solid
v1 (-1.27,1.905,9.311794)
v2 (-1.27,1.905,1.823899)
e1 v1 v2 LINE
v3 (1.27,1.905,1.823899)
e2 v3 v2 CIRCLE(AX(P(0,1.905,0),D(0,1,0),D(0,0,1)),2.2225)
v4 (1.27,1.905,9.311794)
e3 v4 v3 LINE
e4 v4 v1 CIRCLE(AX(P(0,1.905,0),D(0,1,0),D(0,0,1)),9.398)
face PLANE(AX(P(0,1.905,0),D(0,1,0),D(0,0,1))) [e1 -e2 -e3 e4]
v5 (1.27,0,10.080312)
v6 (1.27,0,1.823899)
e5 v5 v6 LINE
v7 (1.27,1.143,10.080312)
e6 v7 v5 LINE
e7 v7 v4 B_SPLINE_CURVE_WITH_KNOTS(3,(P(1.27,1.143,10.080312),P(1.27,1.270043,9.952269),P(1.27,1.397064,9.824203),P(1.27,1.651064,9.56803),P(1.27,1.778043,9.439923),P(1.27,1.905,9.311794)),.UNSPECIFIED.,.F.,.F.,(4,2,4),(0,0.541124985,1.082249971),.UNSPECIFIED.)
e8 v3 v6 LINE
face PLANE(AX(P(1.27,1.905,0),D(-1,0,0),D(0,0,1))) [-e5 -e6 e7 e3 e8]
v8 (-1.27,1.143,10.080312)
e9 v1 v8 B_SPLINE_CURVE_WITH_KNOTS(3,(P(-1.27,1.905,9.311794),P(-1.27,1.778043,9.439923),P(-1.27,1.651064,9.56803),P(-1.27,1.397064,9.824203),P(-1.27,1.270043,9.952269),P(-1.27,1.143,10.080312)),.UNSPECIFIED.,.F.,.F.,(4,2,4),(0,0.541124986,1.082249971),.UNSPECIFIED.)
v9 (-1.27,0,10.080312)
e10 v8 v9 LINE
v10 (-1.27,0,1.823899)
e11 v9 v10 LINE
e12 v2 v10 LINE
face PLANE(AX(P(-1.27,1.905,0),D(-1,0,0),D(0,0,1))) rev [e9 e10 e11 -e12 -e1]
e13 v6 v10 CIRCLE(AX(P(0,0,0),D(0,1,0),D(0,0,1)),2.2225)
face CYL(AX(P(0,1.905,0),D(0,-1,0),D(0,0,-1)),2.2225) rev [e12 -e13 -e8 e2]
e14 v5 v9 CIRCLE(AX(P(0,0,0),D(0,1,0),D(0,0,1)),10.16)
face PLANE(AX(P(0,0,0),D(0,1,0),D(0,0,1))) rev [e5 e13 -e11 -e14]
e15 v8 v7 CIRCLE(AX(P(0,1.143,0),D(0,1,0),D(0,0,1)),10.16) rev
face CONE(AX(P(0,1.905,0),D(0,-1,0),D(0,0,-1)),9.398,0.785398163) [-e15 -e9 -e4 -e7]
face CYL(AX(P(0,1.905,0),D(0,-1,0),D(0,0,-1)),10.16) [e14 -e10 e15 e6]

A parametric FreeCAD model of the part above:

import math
import FreeCAD as App
import Part
import Sketcher
from FreeCAD import Vector
Q = App.Units.Quantity


def edges_at(feature, points):
    """Names of the edges that pass closest to the given points."""
    edges = feature.Shape.Edges
    near = lambda p: min(range(len(edges)), key=lambda i: edges[i].distToShape(Part.Vertex(*p))[0])
    return sorted({f"Edge{near(p) + 1}" for p in points})

doc = App.newDocument("Part")
params = doc.addObject("Spreadsheet::Sheet", "Params")
for row, (alias, value) in enumerate([
    ("sketch1_radius", "0.4 in"),
    ("pad1_length", "0.075 in"),
    ("chamfer_size", "0.03 in"),
], start=1):
    params.set(f"A{row}", alias)
    params.set(f"B{row}", "=" + value)
    params.setAlias(f"B{row}", alias)

body = doc.addObject("PartDesign::Body", "Body")

sketch1 = body.newObject("Sketcher::SketchObject", "Sketch")
sketch1.AttachmentSupport = (doc.getObject("XZ_Plane"), [""])
sketch1.MapMode = "FlatFace"
sketch1.addGeometry([
    Part.LineSegment(Vector(-1.3, 10.1, 0), Vector(-1.3, 1.8, 0)),
    Part.ArcOfCircle(Part.Circle(Vector(0, 0, 0), Vector(0, 0, 1), 2.2), math.radians(125), math.radians(360)),
    Part.ArcOfCircle(Part.Circle(Vector(0, 0, 0), Vector(0, 0, 1), 2.2), math.radians(0), math.radians(55)),
    Part.LineSegment(Vector(1.3, 1.8, 0), Vector(1.3, 10.1, 0)),
    Part.ArcOfCircle(Part.Circle(Vector(0, 0, 0), Vector(0, 0, 1), 10.2), math.radians(97), math.radians(443)),
], False)
sketch1.addConstraint([
    Sketcher.Constraint("Coincident", 0, 2, 1, 1),
    Sketcher.Constraint("Tangent", 1, 2, 2, 1),
    Sketcher.Constraint("Coincident", 2, 2, 3, 1),
    Sketcher.Constraint("Coincident", 3, 2, 4, 2),
    Sketcher.Constraint("Coincident", 4, 1, 0, 1),
    Sketcher.Constraint("Vertical", 0),
    Sketcher.Constraint("Vertical", 3),
    Sketcher.Constraint("Coincident", 1, 3, -1, 1),
    Sketcher.Constraint("Coincident", 4, 3, -1, 1),
    Sketcher.Constraint("Equal", 1, 2),
    Sketcher.Constraint("PointOnObject", 1, 2, -1),
    Sketcher.Constraint("Horizontal", 0, 2, 2, 2),
    Sketcher.Constraint("Radius", 4, Q("0.4 in")),
    Sketcher.Constraint("Radius", 1, Q("0.0875 in")),
    Sketcher.Constraint("DistanceX", 0, 2, 2, 2, Q("0.1 in")),
])
sketch1.setExpression("Constraints[12]", "Params.sketch1_radius")
pad1 = body.newObject("PartDesign::Pad", "Pad")
pad1.Profile = sketch1
pad1.setExpression("Length", "Params.pad1_length")
pad1.Reversed = True
doc.recompute()

chamfer = body.newObject("PartDesign::Chamfer", "Chamfer")
chamfer.Base = (pad1, edges_at(pad1, [(0, 1.905, -10.16)]))
chamfer.setExpression("Size", "Params.chamfer_size")

doc.recompute()
